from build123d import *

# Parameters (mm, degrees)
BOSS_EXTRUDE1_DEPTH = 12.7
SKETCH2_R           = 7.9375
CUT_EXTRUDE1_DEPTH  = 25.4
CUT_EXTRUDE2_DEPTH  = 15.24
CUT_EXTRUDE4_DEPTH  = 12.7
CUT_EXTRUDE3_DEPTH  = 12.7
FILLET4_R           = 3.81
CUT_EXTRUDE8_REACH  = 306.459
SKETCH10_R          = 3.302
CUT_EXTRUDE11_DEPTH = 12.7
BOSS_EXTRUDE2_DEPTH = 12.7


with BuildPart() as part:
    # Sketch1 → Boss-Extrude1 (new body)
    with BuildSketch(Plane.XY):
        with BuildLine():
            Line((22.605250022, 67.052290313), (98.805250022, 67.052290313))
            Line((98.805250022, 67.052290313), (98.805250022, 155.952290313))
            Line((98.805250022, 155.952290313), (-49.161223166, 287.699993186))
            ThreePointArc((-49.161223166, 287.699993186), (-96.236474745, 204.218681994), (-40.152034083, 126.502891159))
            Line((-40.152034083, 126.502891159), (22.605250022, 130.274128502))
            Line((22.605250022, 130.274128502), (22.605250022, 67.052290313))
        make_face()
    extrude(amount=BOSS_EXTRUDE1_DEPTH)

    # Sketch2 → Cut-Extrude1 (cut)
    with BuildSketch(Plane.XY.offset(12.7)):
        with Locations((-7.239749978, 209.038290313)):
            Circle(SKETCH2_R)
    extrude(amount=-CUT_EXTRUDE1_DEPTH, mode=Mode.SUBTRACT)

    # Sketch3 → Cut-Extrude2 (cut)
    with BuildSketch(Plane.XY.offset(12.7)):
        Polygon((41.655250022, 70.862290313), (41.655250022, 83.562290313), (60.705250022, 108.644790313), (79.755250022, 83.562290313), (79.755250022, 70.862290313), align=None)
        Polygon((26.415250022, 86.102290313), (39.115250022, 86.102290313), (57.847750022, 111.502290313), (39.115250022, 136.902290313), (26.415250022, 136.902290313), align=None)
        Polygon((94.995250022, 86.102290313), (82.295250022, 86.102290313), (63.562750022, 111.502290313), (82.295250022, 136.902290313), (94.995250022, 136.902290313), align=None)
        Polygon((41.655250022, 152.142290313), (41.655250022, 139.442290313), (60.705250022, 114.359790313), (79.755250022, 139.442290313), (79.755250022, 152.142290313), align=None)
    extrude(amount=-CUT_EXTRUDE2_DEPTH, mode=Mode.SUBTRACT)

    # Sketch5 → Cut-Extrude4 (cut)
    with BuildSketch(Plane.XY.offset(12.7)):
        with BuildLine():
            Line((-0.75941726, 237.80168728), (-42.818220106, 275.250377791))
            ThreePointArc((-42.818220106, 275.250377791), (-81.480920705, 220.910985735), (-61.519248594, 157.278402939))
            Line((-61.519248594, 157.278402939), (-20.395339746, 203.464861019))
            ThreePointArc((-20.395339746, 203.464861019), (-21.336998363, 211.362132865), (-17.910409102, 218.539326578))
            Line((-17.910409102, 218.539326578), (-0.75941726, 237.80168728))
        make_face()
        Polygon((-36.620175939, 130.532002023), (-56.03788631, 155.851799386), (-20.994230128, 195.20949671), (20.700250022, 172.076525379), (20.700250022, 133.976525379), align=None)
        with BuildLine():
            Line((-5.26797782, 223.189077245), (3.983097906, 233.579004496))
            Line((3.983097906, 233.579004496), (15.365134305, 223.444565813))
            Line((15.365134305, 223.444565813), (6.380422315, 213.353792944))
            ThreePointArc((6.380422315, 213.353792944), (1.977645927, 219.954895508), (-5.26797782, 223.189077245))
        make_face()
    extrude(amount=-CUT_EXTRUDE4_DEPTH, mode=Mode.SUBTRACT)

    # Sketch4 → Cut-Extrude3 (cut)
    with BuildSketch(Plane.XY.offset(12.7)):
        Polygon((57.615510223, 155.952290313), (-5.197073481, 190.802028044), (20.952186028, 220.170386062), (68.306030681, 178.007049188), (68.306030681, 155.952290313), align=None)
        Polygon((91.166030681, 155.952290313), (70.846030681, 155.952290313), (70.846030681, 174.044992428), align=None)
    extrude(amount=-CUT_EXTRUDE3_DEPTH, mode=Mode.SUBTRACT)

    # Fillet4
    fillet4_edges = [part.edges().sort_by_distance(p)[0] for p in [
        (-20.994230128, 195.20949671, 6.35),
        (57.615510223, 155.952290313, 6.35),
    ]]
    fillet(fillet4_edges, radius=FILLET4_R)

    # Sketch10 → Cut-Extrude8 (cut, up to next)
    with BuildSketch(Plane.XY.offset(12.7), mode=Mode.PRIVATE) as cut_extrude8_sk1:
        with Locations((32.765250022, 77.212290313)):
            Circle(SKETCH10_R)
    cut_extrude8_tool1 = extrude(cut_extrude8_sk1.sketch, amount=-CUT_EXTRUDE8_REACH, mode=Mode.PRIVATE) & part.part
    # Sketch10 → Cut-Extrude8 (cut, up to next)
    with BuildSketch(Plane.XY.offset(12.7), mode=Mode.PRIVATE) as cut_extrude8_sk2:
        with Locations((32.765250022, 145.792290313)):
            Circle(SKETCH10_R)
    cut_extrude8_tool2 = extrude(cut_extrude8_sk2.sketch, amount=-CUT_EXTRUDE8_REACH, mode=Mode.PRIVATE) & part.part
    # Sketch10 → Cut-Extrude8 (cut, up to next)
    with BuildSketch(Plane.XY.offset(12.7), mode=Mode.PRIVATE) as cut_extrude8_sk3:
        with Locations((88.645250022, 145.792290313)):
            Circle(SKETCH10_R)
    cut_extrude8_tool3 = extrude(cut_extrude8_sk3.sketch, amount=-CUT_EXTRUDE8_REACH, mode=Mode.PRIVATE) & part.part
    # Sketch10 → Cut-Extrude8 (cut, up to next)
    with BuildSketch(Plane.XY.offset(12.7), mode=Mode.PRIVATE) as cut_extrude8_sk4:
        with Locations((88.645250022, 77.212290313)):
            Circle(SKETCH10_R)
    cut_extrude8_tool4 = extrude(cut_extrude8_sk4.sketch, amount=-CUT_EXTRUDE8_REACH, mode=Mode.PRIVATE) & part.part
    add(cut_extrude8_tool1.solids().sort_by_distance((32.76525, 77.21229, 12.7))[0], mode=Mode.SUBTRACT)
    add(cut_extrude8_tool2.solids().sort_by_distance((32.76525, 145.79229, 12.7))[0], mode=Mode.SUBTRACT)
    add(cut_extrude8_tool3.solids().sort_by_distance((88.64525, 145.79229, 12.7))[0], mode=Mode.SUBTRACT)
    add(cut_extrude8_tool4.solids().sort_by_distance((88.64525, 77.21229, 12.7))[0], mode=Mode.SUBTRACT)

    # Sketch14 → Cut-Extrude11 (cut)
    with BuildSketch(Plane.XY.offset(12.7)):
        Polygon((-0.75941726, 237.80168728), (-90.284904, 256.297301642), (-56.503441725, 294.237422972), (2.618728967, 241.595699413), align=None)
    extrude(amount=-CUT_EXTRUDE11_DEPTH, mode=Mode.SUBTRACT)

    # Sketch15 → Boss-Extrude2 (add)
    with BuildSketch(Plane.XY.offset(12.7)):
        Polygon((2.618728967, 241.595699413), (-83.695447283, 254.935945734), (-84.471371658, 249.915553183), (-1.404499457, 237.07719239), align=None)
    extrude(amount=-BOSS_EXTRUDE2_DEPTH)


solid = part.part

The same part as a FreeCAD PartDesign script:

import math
import FreeCAD as App
import Part
import Sketcher
from FreeCAD import Vector
Q = App.Units.Quantity


def edges_at(feature, points):
    """Names of the edges that pass closest to the given points."""
    edges = feature.Shape.Edges
    near = lambda p: min(range(len(edges)), key=lambda i: edges[i].distToShape(Part.Vertex(*p))[0])
    return sorted({f"Edge{near(p) + 1}" for p in points})

doc = App.newDocument("Part")
body = doc.addObject("PartDesign::Body", "Body")

sketch1 = body.newObject("Sketcher::SketchObject", "Sketch")
sketch1.AttachmentSupport = (doc.getObject("XY_Plane"), [""])
sketch1.MapMode = "FlatFace"
sketch1.addGeometry([
    Part.LineSegment(Vector(23, 67, 0), Vector(99, 67, 0)),
    Part.LineSegment(Vector(99, 67, 0), Vector(99, 156, 0)),
    Part.LineSegment(Vector(99, 156, 0), Vector(-49, 288, 0)),
    Part.ArcOfCircle(Part.Circle(Vector(-7, 209, 0), Vector(0, 0, 1), 89), math.radians(118), math.radians(248)),
    Part.LineSegment(Vector(-40, 127, 0), Vector(23, 130, 0)),
    Part.LineSegment(Vector(23, 130, 0), Vector(23, 67, 0)),
], False)
sketch1.addConstraint([
    Sketcher.Constraint("Coincident", 0, 2, 1, 1),
    Sketcher.Constraint("Coincident", 1, 2, 2, 1),
    Sketcher.Constraint("Coincident", 2, 2, 3, 1),
    Sketcher.Constraint("Coincident", 3, 2, 4, 1),
    Sketcher.Constraint("Coincident", 4, 2, 5, 1),
    Sketcher.Constraint("Coincident", 5, 2, 0, 1),
    Sketcher.Constraint("Horizontal", 0),
    Sketcher.Constraint("Vertical", 1),
    Sketcher.Constraint("Vertical", 5),
    Sketcher.Constraint("Radius", 3, Q("3.5 in")),
    Sketcher.Constraint("DistanceX", 0, 1, 0, 2, Q("3 in")),
    Sketcher.Constraint("DistanceY", 1, 1, 1, 2, Q("3.5 in")),
    Sketcher.Constraint("Distance", 2, Q("7.8 in")),
    Sketcher.Constraint("DistanceY", 5, 2, 5, 1, 63.221838),
    Sketcher.Constraint("DistanceY", 3, 2, 1, 2, 29.449399),
    Sketcher.Constraint("DistanceX", -1, 1, 0, 2, 98.80525),
    Sketcher.Constraint("DistanceY", -1, 1, 0, 2, 67.05229),
    Sketcher.Constraint("DistanceX", 2, 2, 3, 3, 41.686228),
    Sketcher.Constraint("DistanceX", 3, 2, 3, 3, 32.677039),
])
pad1 = body.newObject("PartDesign::Pad", "Pad")
pad1.Profile = sketch1
pad1.Length = Q("0.5 in")

sketch2 = body.newObject("Sketcher::SketchObject", "Sketch001")
sketch2.AttachmentSupport = (doc.getObject("XY_Plane"), [""])
sketch2.MapMode = "FlatFace"
sketch2.AttachmentOffset = App.Placement(Vector(0, 0, 0.5 * 25.4), App.Rotation())
sketch2.addGeometry(Part.Circle(Vector(-7, 209, 0), Vector(0, 0, 1), 8), False)
sketch2.addConstraint([
    Sketcher.Constraint("Diameter", 0, Q("0.625 in")),
    Sketcher.Constraint("DistanceX", 0, 3, -1, 1, 7.23975),
    Sketcher.Constraint("DistanceY", -1, 1, 0, 3, 209.03829),
])
pocket1 = body.newObject("PartDesign::Pocket", "Pocket")
pocket1.Profile = sketch2
pocket1.Length = Q("1 in")

sketch3 = body.newObject("Sketcher::SketchObject", "Sketch002")
sketch3.AttachmentSupport = (doc.getObject("XY_Plane"), [""])
sketch3.MapMode = "FlatFace"
sketch3.AttachmentOffset = App.Placement(Vector(0, 0, 0.5 * 25.4), App.Rotation())
sketch3.addGeometry([
    Part.LineSegment(Vector(42, 84, 0), Vector(42, 71, 0)),
    Part.LineSegment(Vector(42, 71, 0), Vector(80, 71, 0)),
    Part.LineSegment(Vector(80, 71, 0), Vector(80, 84, 0)),
    Part.LineSegment(Vector(80, 84, 0), Vector(61, 109, 0)),
    Part.LineSegment(Vector(61, 109, 0), Vector(42, 84, 0)),
    Part.LineSegment(Vector(26, 86, 0), Vector(39, 86, 0)),
    Part.LineSegment(Vector(39, 86, 0), Vector(58, 112, 0)),
    Part.LineSegment(Vector(58, 112, 0), Vector(39, 137, 0)),
    Part.LineSegment(Vector(39, 137, 0), Vector(26, 137, 0)),
    Part.LineSegment(Vector(26, 137, 0), Vector(26, 86, 0)),
    Part.LineSegment(Vector(82, 86, 0), Vector(95, 86, 0)),
    Part.LineSegment(Vector(95, 86, 0), Vector(95, 137, 0)),
    Part.LineSegment(Vector(95, 137, 0), Vector(82, 137, 0)),
    Part.LineSegment(Vector(82, 137, 0), Vector(64, 112, 0)),
    Part.LineSegment(Vector(64, 112, 0), Vector(82, 86, 0)),
    Part.LineSegment(Vector(42, 152, 0), Vector(42, 139, 0)),
    Part.LineSegment(Vector(42, 139, 0), Vector(61, 114, 0)),
    Part.LineSegment(Vector(61, 114, 0), Vector(80, 139, 0)),
    Part.LineSegment(Vector(80, 139, 0), Vector(80, 152, 0)),
    Part.LineSegment(Vector(80, 152, 0), Vector(42, 152, 0)),
], False)
sketch3.addConstraint([
    Sketcher.Constraint("Coincident", 0, 2, 1, 1),
    Sketcher.Constraint("Coincident", 1, 2, 2, 1),
    Sketcher.Constraint("Coincident", 2, 2, 3, 1),
    Sketcher.Constraint("Coincident", 3, 2, 4, 1),
    Sketcher.Constraint("Coincident", 4, 2, 0, 1),
    Sketcher.Constraint("Coincident", 5, 2, 6, 1),
    Sketcher.Constraint("Coincident", 6, 2, 7, 1),
    Sketcher.Constraint("Coincident", 7, 2, 8, 1),
    Sketcher.Constraint("Coincident", 8, 2, 9, 1),
    Sketcher.Constraint("Coincident", 9, 2, 5, 1),
    Sketcher.Constraint("Coincident", 10, 2, 11, 1),
    Sketcher.Constraint("Coincident", 11, 2, 12, 1),
    Sketcher.Constraint("Coincident", 12, 2, 13, 1),
    Sketcher.Constraint("Coincident", 13, 2, 14, 1),
    Sketcher.Constraint("Coincident", 14, 2, 10, 1),
    Sketcher.Constraint("Coincident", 15, 2, 16, 1),
    Sketcher.Constraint("Coincident", 16, 2, 17, 1),
    Sketcher.Constraint("Coincident", 17, 2, 18, 1),
    Sketcher.Constraint("Coincident", 18, 2, 19, 1),
    Sketcher.Constraint("Coincident", 19, 2, 15, 1),
    Sketcher.Constraint("Vertical", 0),
    Sketcher.Constraint("Horizontal", 1),
    Sketcher.Constraint("Vertical", 2),
    Sketcher.Constraint("Horizontal", 5),
    Sketcher.Constraint("Horizontal", 8),
    Sketcher.Constraint("Vertical", 9),
    Sketcher.Constraint("Horizontal", 10),
    Sketcher.Constraint("Vertical", 11),
    Sketcher.Constraint("Horizontal", 12),
    Sketcher.Constraint("Vertical", 15),
    Sketcher.Constraint("Vertical", 18),
    Sketcher.Constraint("Horizontal", 19),
    Sketcher.Constraint("Parallel", 6, 13),
    Sketcher.Constraint("Parallel", 7, 14),
    Sketcher.Constraint("Parallel", 3, 16),
    Sketcher.Constraint("Parallel", 4, 17),
    Sketcher.Constraint("Horizontal", 2, 2, 4, 2),
    Sketcher.Constraint("Horizontal", 9, 2, 10, 2),
    Sketcher.Constraint("Horizontal", 8, 2, 11, 2),
    Sketcher.Constraint("Horizontal", 6, 2, 13, 2),
    Sketcher.Constraint("Horizontal", 15, 2, 17, 2),
    Sketcher.Constraint("Vertical", 5, 2, 7, 2),
    Sketcher.Constraint("Vertical", 12, 2, 14, 2),
    Sketcher.Constraint("Vertical", 4, 2, 15, 2),
    Sketcher.Constraint("Vertical", 3, 2, 16, 2),
    Sketcher.Constraint("Vertical", 2, 2, 17, 2),
    Sketcher.Constraint("Equal", 8, 10),
    Sketcher.Constraint("Equal", 12, 0),
    Sketcher.Constraint("Equal", 2, 15),
    Sketcher.Constraint("DistanceY", 9, 2, 9, 1, Q("2 in")),
    Sketcher.Constraint("DistanceX", 1, 1, 1, 2, Q("1.5 in")),
    Sketcher.Constraint("DistanceX", 5, 1, 5, 2, Q("0.5 in")),
    Sketcher.Constraint("DistanceX", 5, 2, 4, 2, Q("0.1 in")),
    Sketcher.Constraint("DistanceY", 4, 2, 5, 2, Q("0.1 in")),
    Sketcher.Constraint("DistanceX", 2, 2, 10, 2, Q("0.6 in")),
    Sketcher.Constraint("DistanceY", 7, 2, 15, 2, Q("0.1 in")),
    Sketcher.Constraint("DistanceX", 6, 2, 13, 2, Q("0.225 in")),
    Sketcher.Constraint("DistanceY", 3, 2, 16, 2, Q("0.225 in")),
    Sketcher.Constraint("DistanceX", -1, 1, 0, 2, 41.65525),
    Sketcher.Constraint("DistanceY", -1, 1, 0, 2, 70.86229),
])
pocket2 = body.newObject("PartDesign::Pocket", "Pocket001")
pocket2.Profile = sketch3
pocket2.Length = Q("0.6 in")

sketch4 = body.newObject("Sketcher::SketchObject", "Sketch003")
sketch4.AttachmentSupport = (doc.getObject("XY_Plane"), [""])
sketch4.MapMode = "FlatFace"
sketch4.AttachmentOffset = App.Placement(Vector(0, 0, 0.5 * 25.4), App.Rotation())
sketch4.addGeometry([
    Part.LineSegment(Vector(-1, 238, 0), Vector(-43, 275, 0)),
    Part.ArcOfCircle(Part.Circle(Vector(-7, 209, 0), Vector(0, 0, 1), 75), math.radians(118), math.radians(224)),
    Part.LineSegment(Vector(-62, 157, 0), Vector(-20, 203, 0)),
    Part.ArcOfCircle(Part.Circle(Vector(-7, 209, 0), Vector(0, 0, 1), 14), math.radians(138), math.radians(203)),
    Part.LineSegment(Vector(-18, 219, 0), Vector(-1, 238, 0)),
    Part.LineSegment(Vector(-56, 156, 0), Vector(-37, 131, 0)),
    Part.LineSegment(Vector(-37, 131, 0), Vector(21, 134, 0)),
    Part.LineSegment(Vector(21, 134, 0), Vector(21, 172, 0)),
    Part.LineSegment(Vector(21, 172, 0), Vector(-21, 195, 0)),
    Part.LineSegment(Vector(-21, 195, 0), Vector(-56, 156, 0)),
    Part.LineSegment(Vector(4, 234, 0), Vector(-5, 223, 0)),
    Part.ArcOfCircle(Part.Circle(Vector(-7, 209, 0), Vector(0, 0, 1), 14), math.radians(18), math.radians(82)),
    Part.LineSegment(Vector(6, 213, 0), Vector(15, 223, 0)),
    Part.LineSegment(Vector(15, 223, 0), Vector(4, 234, 0)),
], False)
sketch4.addConstraint([
    Sketcher.Constraint("Coincident", 0, 2, 1, 1),
    Sketcher.Constraint("Coincident", 1, 2, 2, 1),
    Sketcher.Constraint("Coincident", 2, 2, 3, 2),
    Sketcher.Constraint("Tangent", 3, 1, 4, 1),
    Sketcher.Constraint("Coincident", 4, 2, 0, 1),
    Sketcher.Constraint("Coincident", 5, 2, 6, 1),
    Sketcher.Constraint("Coincident", 6, 2, 7, 1),
    Sketcher.Constraint("Coincident", 7, 2, 8, 1),
    Sketcher.Constraint("Coincident", 8, 2, 9, 1),
    Sketcher.Constraint("Coincident", 9, 2, 5, 1),
    Sketcher.Constraint("Coincident", 10, 2, 11, 2),
    Sketcher.Constraint("Coincident", 11, 1, 12, 1),
    Sketcher.Constraint("Coincident", 12, 2, 13, 1),
    Sketcher.Constraint("Coincident", 13, 2, 10, 1),
    Sketcher.Constraint("Vertical", 7),
    Sketcher.Constraint("Coincident", 11, 3, 3, 3),
    Sketcher.Constraint("Equal", 3, 11),
    Sketcher.Constraint("Perpendicular", 0, 2),
    Sketcher.Constraint("Parallel", 2, 4),
    Sketcher.Constraint("Parallel", 4, 9),
    Sketcher.Constraint("Parallel", 9, 10),
    Sketcher.Constraint("Parallel", 10, 12),
    Sketcher.Constraint("Perpendicular", 12, 13),
    Sketcher.Constraint("Radius", 1, Q("2.95 in")),
    Sketcher.Constraint("DistanceY", 7, 1, 7, 2, Q("1.5 in")),
    Sketcher.Constraint("Radius", 3, Q("0.5625 in")),
    Sketcher.Constraint("Distance", 13, Q("0.6 in")),
    Sketcher.Constraint("DistanceX", 3, 3, 6, 2, Q("1.1 in")),
    Sketcher.Constraint("DistanceY", 8, 2, 1, 3, Q("0.55 in")),
    Sketcher.Constraint("Distance", 5, 31.9083),
    Sketcher.Constraint("DistanceY", -1, 1, 9, 2, 155.851799),
    Sketcher.Constraint("DistanceX", 1, 2, 3, 3, 54.279499),
    Sketcher.Constraint("DistanceY", 5, 2, 1, 2, 26.746401),
    Sketcher.Constraint("DistanceX", 10, 2, 11, 1, 11.6484),
    Sketcher.Constraint("Distance", 2, 61.841449),
    Sketcher.Constraint("Distance", 12, 13.51106),
    Sketcher.Constraint("DistanceX", 3, 3, -1, 1, 7.23975),
    Sketcher.Constraint("DistanceY", -1, 1, 3, 3, 209.03829),
    Sketcher.Constraint("DistanceX", 0, 2, -1, 1, 42.81822),
    Sketcher.Constraint("DistanceX", 2, 2, -1, 1, 20.39534),
    Sketcher.Constraint("DistanceX", 8, 2, -1, 1, 20.99423),
    Sketcher.Constraint("DistanceY", 1, 3, 0, 2, 66.070881),
    Sketcher.Constraint("DistanceY", 6, 2, 1, 3, 75.202971),
])
pocket3 = body.newObject("PartDesign::Pocket", "Pocket002")
pocket3.Profile = sketch4
pocket3.Length = Q("0.5 in")

sketch5 = body.newObject("Sketcher::SketchObject", "Sketch004")
sketch5.AttachmentSupport = (doc.getObject("XY_Plane"), [""])
sketch5.MapMode = "FlatFace"
sketch5.AttachmentOffset = App.Placement(Vector(0, 0, 0.5 * 25.4), App.Rotation())
sketch5.addGeometry([
    Part.LineSegment(Vector(-5, 191, 0), Vector(58, 156, 0)),
    Part.LineSegment(Vector(58, 156, 0), Vector(68, 156, 0)),
    Part.LineSegment(Vector(68, 156, 0), Vector(68, 178, 0)),
    Part.LineSegment(Vector(68, 178, 0), Vector(21, 220, 0)),
    Part.LineSegment(Vector(21, 220, 0), Vector(-5, 191, 0)),
    Part.LineSegment(Vector(71, 156, 0), Vector(91, 156, 0)),
    Part.LineSegment(Vector(91, 156, 0), Vector(71, 174, 0)),
    Part.LineSegment(Vector(71, 174, 0), Vector(71, 156, 0)),
], False)
sketch5.addConstraint([
    Sketcher.Constraint("Coincident", 0, 2, 1, 1),
    Sketcher.Constraint("Coincident", 1, 2, 2, 1),
    Sketcher.Constraint("Coincident", 2, 2, 3, 1),
    Sketcher.Constraint("Coincident", 3, 2, 4, 1),
    Sketcher.Constraint("Coincident", 4, 2, 0, 1),
    Sketcher.Constraint("Coincident", 5, 2, 6, 1),
    Sketcher.Constraint("Coincident", 6, 2, 7, 1),
    Sketcher.Constraint("Coincident", 7, 2, 5, 1),
    Sketcher.Constraint("Horizontal", 1),
    Sketcher.Constraint("Vertical", 2),
    Sketcher.Constraint("Horizontal", 5),
    Sketcher.Constraint("Vertical", 7),
    Sketcher.Constraint("Perpendicular", 3, 4),
    Sketcher.Constraint("Perpendicular", 4, 6),
    Sketcher.Constraint("Horizontal", 1, 2, 5, 2),
    Sketcher.Constraint("DistanceX", 5, 1, 5, 2, Q("0.8 in")),
    Sketcher.Constraint("DistanceX", 1, 2, 5, 2, Q("0.9 in")),
    Sketcher.Constraint("DistanceX", 1, 1, 1, 2, 10.69052),
    Sketcher.Constraint("DistanceY", 2, 1, 2, 2, 22.054759),
    Sketcher.Constraint("Distance", 4, 39.322821),
    Sketcher.Constraint("DistanceY", 7, 2, 7, 1, 18.092702),
    Sketcher.Constraint("DistanceX", -1, 1, 0, 2, 57.61551),
    Sketcher.Constraint("DistanceY", -1, 1, 0, 2, 155.95229),
    Sketcher.Constraint("DistanceY", -1, 1, 4, 2, 190.802028),
])
pocket4 = body.newObject("PartDesign::Pocket", "Pocket003")
pocket4.Profile = sketch5
pocket4.Length = Q("0.5 in")
doc.recompute()

fillet = body.newObject("PartDesign::Fillet", "Fillet")
fillet.Base = (pocket4, edges_at(pocket4, [(-20.994, 195.209, 6.35), (57.616, 155.952, 6.35)]))
fillet.Radius = Q("0.15 in")

sketch6 = body.newObject("Sketcher::SketchObject", "Sketch005")
sketch6.AttachmentSupport = (doc.getObject("XY_Plane"), [""])
sketch6.MapMode = "FlatFace"
sketch6.AttachmentOffset = App.Placement(Vector(0, 0, 0.5 * 25.4), App.Rotation())
sketch6.addGeometry(Part.Circle(Vector(32.8, 77.2, 0), Vector(0, 0, 1), 3.3), False)
sketch6.addConstraint([
    Sketcher.Constraint("Diameter", 0, Q("0.26 in")),
    Sketcher.Constraint("DistanceX", -1, 1, 0, 3, 32.76525),
    Sketcher.Constraint("DistanceY", -1, 1, 0, 3, 77.21229),
])
pocket5 = body.newObject("PartDesign::Pocket", "Pocket004")
pocket5.Profile = sketch6
pocket5.Type = "UpToFirst"

sketch7 = body.newObject("Sketcher::SketchObject", "Sketch006")
sketch7.AttachmentSupport = (doc.getObject("XY_Plane"), [""])
sketch7.MapMode = "FlatFace"
sketch7.AttachmentOffset = App.Placement(Vector(0, 0, 0.5 * 25.4), App.Rotation())
sketch7.addGeometry(Part.Circle(Vector(32.8, 145.8, 0), Vector(0, 0, 1), 3.3), False)
sketch7.addConstraint([
    Sketcher.Constraint("Diameter", 0, Q("0.26 in")),
    Sketcher.Constraint("DistanceX", -1, 1, 0, 3, 32.76525),
    Sketcher.Constraint("DistanceY", -1, 1, 0, 3, 145.79229),
])
pocket6 = body.newObject("PartDesign::Pocket", "Pocket005")
pocket6.Profile = sketch7
pocket6.Type = "UpToFirst"

sketch8 = body.newObject("Sketcher::SketchObject", "Sketch007")
sketch8.AttachmentSupport = (doc.getObject("XY_Plane"), [""])
sketch8.MapMode = "FlatFace"
sketch8.AttachmentOffset = App.Placement(Vector(0, 0, 0.5 * 25.4), App.Rotation())
sketch8.addGeometry(Part.Circle(Vector(88.6, 145.8, 0), Vector(0, 0, 1), 3.3), False)
sketch8.addConstraint([
    Sketcher.Constraint("Diameter", 0, Q("0.26 in")),
    Sketcher.Constraint("DistanceX", -1, 1, 0, 3, 88.64525),
    Sketcher.Constraint("DistanceY", -1, 1, 0, 3, 145.79229),
])
pocket7 = body.newObject("PartDesign::Pocket", "Pocket006")
pocket7.Profile = sketch8
pocket7.Type = "UpToFirst"

sketch9 = body.newObject("Sketcher::SketchObject", "Sketch008")
sketch9.AttachmentSupport = (doc.getObject("XY_Plane"), [""])
sketch9.MapMode = "FlatFace"
sketch9.AttachmentOffset = App.Placement(Vector(0, 0, 0.5 * 25.4), App.Rotation())
sketch9.addGeometry(Part.Circle(Vector(88.6, 77.2, 0), Vector(0, 0, 1), 3.3), False)
sketch9.addConstraint([
    Sketcher.Constraint("Diameter", 0, Q("0.26 in")),
    Sketcher.Constraint("DistanceX", -1, 1, 0, 3, 88.64525),
    Sketcher.Constraint("DistanceY", -1, 1, 0, 3, 77.21229),
])
pocket8 = body.newObject("PartDesign::Pocket", "Pocket007")
pocket8.Profile = sketch9
pocket8.Type = "UpToFirst"

sketch10 = body.newObject("Sketcher::SketchObject", "Sketch009")
sketch10.AttachmentSupport = (doc.getObject("XY_Plane"), [""])
sketch10.MapMode = "FlatFace"
sketch10.AttachmentOffset = App.Placement(Vector(0, 0, 0.5 * 25.4), App.Rotation())
sketch10.addGeometry([
    Part.LineSegment(Vector(-90, 256, 0), Vector(-1, 238, 0)),
    Part.LineSegment(Vector(-1, 238, 0), Vector(3, 242, 0)),
    Part.LineSegment(Vector(3, 242, 0), Vector(-57, 294, 0)),
    Part.LineSegment(Vector(-57, 294, 0), Vector(-90, 256, 0)),
], False)
sketch10.addConstraint([
    Sketcher.Constraint("Coincident", 0, 2, 1, 1),
    Sketcher.Constraint("Coincident", 1, 2, 2, 1),
    Sketcher.Constraint("Coincident", 2, 2, 3, 1),
    Sketcher.Constraint("Coincident", 3, 2, 0, 1),
    Sketcher.Constraint("Perpendicular", 1, 2),
    Sketcher.Constraint("Perpendicular", 2, 3),
    Sketcher.Constraint("Distance", 3, Q("2 in")),
    Sketcher.Constraint("Distance", 1, Q("0.2 in")),
    Sketcher.Constraint("DistanceY", -1, 1, 1, 2, 241.595699),
    Sketcher.Constraint("DistanceY", -1, 1, 3, 2, 256.297302),
    Sketcher.Constraint("DistanceX", -1, 1, 1, 2, 2.618729),
    Sketcher.Constraint("DistanceX", 2, 2, -1, 1, 56.503442),
])
pocket9 = body.newObject("PartDesign::Pocket", "Pocket008")
pocket9.Profile = sketch10
pocket9.Length = Q("0.5 in")

sketch11 = body.newObject("Sketcher::SketchObject", "Sketch010")
sketch11.AttachmentSupport = (doc.getObject("XY_Plane"), [""])
sketch11.MapMode = "FlatFace"
sketch11.AttachmentOffset = App.Placement(Vector(0, 0, 0.5 * 25.4), App.Rotation())
sketch11.addGeometry([
    Part.LineSegment(Vector(3, 242, 0), Vector(-84, 255, 0)),
    Part.LineSegment(Vector(-84, 255, 0), Vector(-84, 250, 0)),
    Part.LineSegment(Vector(-84, 250, 0), Vector(-1, 237, 0)),
    Part.LineSegment(Vector(-1, 237, 0), Vector(3, 242, 0)),
], False)
sketch11.addConstraint([
    Sketcher.Constraint("Coincident", 0, 2, 1, 1),
    Sketcher.Constraint("Coincident", 1, 2, 2, 1),
    Sketcher.Constraint("Coincident", 2, 2, 3, 1),
    Sketcher.Constraint("Coincident", 3, 2, 0, 1),
    Sketcher.Constraint("Perpendicular", 0, 1),
    Sketcher.Constraint("Perpendicular", 1, 2),
    Sketcher.Constraint("Distance", 1, Q("0.2 in")),
    Sketcher.Constraint("DistanceX", 2, 2, -1, 1, 1.404499),
    Sketcher.Constraint("DistanceY", -1, 1, 3, 2, 241.595699),
    Sketcher.Constraint("DistanceX", 1, 2, 3, 2, 87.090101),
    Sketcher.Constraint("Distance", 0, 87.33899),
    Sketcher.Constraint("Distance", 2, 84.053131),
])
pad2 = body.newObject("PartDesign::Pad", "Pad001")
pad2.Profile = sketch11
pad2.Length = Q("0.5 in")
pad2.Reversed = True

doc.recompute()
